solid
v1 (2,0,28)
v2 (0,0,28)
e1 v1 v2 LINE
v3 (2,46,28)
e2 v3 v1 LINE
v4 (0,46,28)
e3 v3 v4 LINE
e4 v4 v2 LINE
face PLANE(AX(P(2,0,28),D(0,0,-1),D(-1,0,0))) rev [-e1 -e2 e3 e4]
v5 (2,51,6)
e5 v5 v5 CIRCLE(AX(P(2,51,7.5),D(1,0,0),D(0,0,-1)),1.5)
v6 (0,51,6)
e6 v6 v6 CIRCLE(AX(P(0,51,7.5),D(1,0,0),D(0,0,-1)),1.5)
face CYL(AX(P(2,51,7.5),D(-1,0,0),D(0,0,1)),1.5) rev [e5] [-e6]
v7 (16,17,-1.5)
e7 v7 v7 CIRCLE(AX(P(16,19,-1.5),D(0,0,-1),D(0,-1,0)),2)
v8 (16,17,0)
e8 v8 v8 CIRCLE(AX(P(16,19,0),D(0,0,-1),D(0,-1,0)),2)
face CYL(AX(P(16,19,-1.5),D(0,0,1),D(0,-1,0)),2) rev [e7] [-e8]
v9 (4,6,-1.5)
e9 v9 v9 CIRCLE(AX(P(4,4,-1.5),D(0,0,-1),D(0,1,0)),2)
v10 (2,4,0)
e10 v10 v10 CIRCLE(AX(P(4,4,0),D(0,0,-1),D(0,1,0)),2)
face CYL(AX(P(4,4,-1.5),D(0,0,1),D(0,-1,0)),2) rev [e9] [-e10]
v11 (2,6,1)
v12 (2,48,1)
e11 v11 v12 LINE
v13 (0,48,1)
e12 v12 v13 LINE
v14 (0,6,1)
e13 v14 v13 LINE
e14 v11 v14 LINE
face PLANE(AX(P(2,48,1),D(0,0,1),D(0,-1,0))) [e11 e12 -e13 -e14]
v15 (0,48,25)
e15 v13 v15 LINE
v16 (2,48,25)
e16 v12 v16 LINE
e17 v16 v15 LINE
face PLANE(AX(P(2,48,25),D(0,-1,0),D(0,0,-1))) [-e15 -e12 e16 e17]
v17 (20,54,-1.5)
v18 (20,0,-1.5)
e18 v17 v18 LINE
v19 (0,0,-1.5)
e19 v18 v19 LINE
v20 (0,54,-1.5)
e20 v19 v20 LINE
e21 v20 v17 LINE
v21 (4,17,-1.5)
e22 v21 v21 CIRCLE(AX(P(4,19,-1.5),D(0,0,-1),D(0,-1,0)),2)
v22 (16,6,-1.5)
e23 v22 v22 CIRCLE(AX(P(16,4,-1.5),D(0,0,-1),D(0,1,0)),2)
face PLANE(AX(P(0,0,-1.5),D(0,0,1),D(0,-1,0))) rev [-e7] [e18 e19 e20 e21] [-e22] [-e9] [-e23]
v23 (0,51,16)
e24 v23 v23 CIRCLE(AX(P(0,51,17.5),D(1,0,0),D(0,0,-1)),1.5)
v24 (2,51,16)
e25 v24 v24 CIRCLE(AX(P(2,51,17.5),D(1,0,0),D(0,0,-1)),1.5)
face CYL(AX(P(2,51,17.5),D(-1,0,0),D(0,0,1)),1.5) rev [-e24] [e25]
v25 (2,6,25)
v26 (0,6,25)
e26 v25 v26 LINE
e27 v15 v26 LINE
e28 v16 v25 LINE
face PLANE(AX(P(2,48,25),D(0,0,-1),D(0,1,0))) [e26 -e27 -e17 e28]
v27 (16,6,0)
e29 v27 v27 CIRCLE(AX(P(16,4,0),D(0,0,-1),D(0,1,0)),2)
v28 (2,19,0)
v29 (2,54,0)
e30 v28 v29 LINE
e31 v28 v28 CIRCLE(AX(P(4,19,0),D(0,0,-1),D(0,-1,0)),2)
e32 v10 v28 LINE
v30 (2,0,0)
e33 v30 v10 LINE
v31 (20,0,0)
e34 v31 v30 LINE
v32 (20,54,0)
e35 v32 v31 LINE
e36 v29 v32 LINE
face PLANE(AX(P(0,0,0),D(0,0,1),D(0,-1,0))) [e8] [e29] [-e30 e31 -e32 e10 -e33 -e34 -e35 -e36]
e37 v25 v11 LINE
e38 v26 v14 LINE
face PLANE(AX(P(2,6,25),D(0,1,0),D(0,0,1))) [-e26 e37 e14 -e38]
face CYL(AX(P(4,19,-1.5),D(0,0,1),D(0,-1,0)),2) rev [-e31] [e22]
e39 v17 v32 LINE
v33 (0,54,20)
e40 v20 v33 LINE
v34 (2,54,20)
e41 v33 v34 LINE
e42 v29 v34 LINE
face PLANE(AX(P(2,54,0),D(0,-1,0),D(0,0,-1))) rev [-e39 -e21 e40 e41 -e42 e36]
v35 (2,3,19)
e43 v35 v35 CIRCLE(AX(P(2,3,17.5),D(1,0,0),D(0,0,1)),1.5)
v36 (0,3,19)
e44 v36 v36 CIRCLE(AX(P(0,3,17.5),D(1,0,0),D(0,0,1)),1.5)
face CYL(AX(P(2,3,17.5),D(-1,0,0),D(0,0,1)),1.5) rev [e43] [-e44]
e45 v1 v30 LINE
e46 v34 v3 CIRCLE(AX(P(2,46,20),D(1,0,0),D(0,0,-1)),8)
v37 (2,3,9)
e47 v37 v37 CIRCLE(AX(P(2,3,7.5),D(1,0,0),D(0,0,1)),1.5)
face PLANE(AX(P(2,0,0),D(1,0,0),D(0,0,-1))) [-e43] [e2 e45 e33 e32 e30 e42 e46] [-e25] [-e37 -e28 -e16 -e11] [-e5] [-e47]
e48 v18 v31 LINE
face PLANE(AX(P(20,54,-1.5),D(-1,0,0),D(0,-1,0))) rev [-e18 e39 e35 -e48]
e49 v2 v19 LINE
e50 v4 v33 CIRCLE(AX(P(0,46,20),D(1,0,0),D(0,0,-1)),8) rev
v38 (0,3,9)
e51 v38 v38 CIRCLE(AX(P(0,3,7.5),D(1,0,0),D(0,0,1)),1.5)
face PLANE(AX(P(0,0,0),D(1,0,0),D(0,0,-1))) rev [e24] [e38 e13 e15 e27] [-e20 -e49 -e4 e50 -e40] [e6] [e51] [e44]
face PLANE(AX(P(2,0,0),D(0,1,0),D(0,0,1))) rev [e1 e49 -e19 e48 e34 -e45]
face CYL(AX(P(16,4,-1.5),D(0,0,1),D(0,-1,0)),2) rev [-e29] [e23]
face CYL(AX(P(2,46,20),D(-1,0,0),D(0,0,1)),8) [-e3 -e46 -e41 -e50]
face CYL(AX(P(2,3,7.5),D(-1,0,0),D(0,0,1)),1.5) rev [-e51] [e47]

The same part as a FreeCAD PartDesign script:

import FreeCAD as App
import Part
import Sketcher
from FreeCAD import Vector


def edges_at(feature, points):
    """Names of the edges that pass closest to the given points."""
    edges = feature.Shape.Edges
    near = lambda p: min(range(len(edges)), key=lambda i: edges[i].distToShape(Part.Vertex(*p))[0])
    return sorted({f"Edge{near(p) + 1}" for p in points})

doc = App.newDocument("Part")
body = doc.addObject("PartDesign::Body", "Body")

sketch1 = body.newObject("Sketcher::SketchObject", "Sketch")
sketch1.AttachmentSupport = (doc.getObject("YZ_Plane"), [""])
sketch1.MapMode = "FlatFace"
sketch1.addGeometry([
    Part.LineSegment(Vector(54, 28, 0), Vector(0, 28, 0)),
    Part.LineSegment(Vector(0, 28, 0), Vector(0, 0, 0)),
    Part.LineSegment(Vector(0, 0, 0), Vector(54, 0, 0)),
    Part.LineSegment(Vector(54, 0, 0), Vector(54, 28, 0)),
    Part.Circle(Vector(3, 17.5, 0), Vector(0, 0, 1), 1.5),
    Part.Circle(Vector(3, 7.5, 0), Vector(0, 0, 1), 1.5),
    Part.Circle(Vector(51, 17.5, 0), Vector(0, 0, 1), 1.5),
    Part.LineSegment(Vector(6, 1, 0), Vector(6, 25, 0)),
    Part.LineSegment(Vector(6, 25, 0), Vector(48, 25, 0)),
    Part.LineSegment(Vector(48, 25, 0), Vector(48, 1, 0)),
    Part.LineSegment(Vector(48, 1, 0), Vector(6, 1, 0)),
    Part.Circle(Vector(51, 7.5, 0), Vector(0, 0, 1), 1.5),
], False)
sketch1.addConstraint([
    Sketcher.Constraint("Coincident", 0, 2, 1, 1),
    Sketcher.Constraint("Coincident", 1, 2, 2, 1),
    Sketcher.Constraint("Coincident", 2, 2, 3, 1),
    Sketcher.Constraint("Coincident", 3, 2, 0, 1),
    Sketcher.Constraint("Coincident", 7, 2, 8, 1),
    Sketcher.Constraint("Coincident", 8, 2, 9, 1),
    Sketcher.Constraint("Coincident", 9, 2, 10, 1),
    Sketcher.Constraint("Coincident", 10, 2, 7, 1),
    Sketcher.Constraint("Horizontal", 0),
    Sketcher.Constraint("Vertical", 1),
    Sketcher.Constraint("Horizontal", 2),
    Sketcher.Constraint("Vertical", 3),
    Sketcher.Constraint("Vertical", 7),
    Sketcher.Constraint("Horizontal", 8),
    Sketcher.Constraint("Vertical", 9),
    Sketcher.Constraint("Horizontal", 10),
    Sketcher.Constraint("Coincident", 1, 2, -1, 1),
    Sketcher.Constraint("Equal", 4, 5),
    Sketcher.Constraint("Equal", 5, 6),
    Sketcher.Constraint("Equal", 6, 11),
    Sketcher.Constraint("Horizontal", 4, 3, 6, 3),
    Sketcher.Constraint("Horizontal", 5, 3, 11, 3),
    Sketcher.Constraint("Vertical", 4, 3, 5, 3),
    Sketcher.Constraint("Vertical", 6, 3, 11, 3),
    Sketcher.Constraint("Diameter", 4, 3.0),
    Sketcher.Constraint("DistanceX", 0, 2, 0, 1, 54.0),
    Sketcher.Constraint("DistanceX", 8, 1, 8, 2, 42.0),
    Sketcher.Constraint("DistanceY", 1, 2, 1, 1, 28.0),
    Sketcher.Constraint("DistanceY", 7, 1, 7, 2, 24.0),
    Sketcher.Constraint("DistanceX", -1, 1, 4, 3, 3.0),
    Sketcher.Constraint("DistanceX", -1, 1, 6, 3, 51.0),
    Sketcher.Constraint("DistanceX", -1, 1, 7, 2, 6.0),
    Sketcher.Constraint("DistanceY", -1, 1, 7, 2, 25.0),
    Sketcher.Constraint("DistanceY", 5, 3, 4, 3, 10.0),
    Sketcher.Constraint("DistanceY", -1, 1, 4, 3, 17.5),
])
pad1 = body.newObject("PartDesign::Pad", "Pad")
pad1.Profile = sketch1
pad1.Length = 2

sketch2 = body.newObject("Sketcher::SketchObject", "Sketch001")
sketch2.AttachmentSupport = (doc.getObject("XY_Plane"), [""])
sketch2.MapMode = "FlatFace"
sketch2.addGeometry([
    Part.LineSegment(Vector(20, 54, 0), Vector(20, 0, 0)),
    Part.LineSegment(Vector(20, 0, 0), Vector(0, 0, 0)),
    Part.LineSegment(Vector(0, 0, 0), Vector(0, 54, 0)),
    Part.LineSegment(Vector(0, 54, 0), Vector(20, 54, 0)),
    Part.Circle(Vector(16, 4, 0), Vector(0, 0, 1), 2),
    Part.Circle(Vector(4, 4, 0), Vector(0, 0, 1), 2),
    Part.Circle(Vector(16, 19, 0), Vector(0, 0, 1), 2),
    Part.Circle(Vector(4, 19, 0), Vector(0, 0, 1), 2),
], False)
sketch2.addConstraint([
    Sketcher.Constraint("Coincident", 0, 2, 1, 1),
    Sketcher.Constraint("Coincident", 1, 2, 2, 1),
    Sketcher.Constraint("Coincident", 2, 2, 3, 1),
    Sketcher.Constraint("Coincident", 3, 2, 0, 1),
    Sketcher.Constraint("Vertical", 0),
    Sketcher.Constraint("Horizontal", 1),
    Sketcher.Constraint("Vertical", 2),
    Sketcher.Constraint("Horizontal", 3),
    Sketcher.Constraint("Coincident", 1, 2, -1, 1),
    Sketcher.Constraint("Equal", 4, 5),
    Sketcher.Constraint("Equal", 5, 6),
    Sketcher.Constraint("Equal", 6, 7),
    Sketcher.Constraint("Horizontal", 4, 3, 5, 3),
    Sketcher.Constraint("Horizontal", 6, 3, 7, 3),
    Sketcher.Constraint("Vertical", 4, 3, 6, 3),
    Sketcher.Constraint("Vertical", 5, 3, 7, 3),
    Sketcher.Constraint("Diameter", 4, 4.0),
    Sketcher.Constraint("DistanceX", 1, 2, 1, 1, 20.0),
    Sketcher.Constraint("DistanceY", 0, 2, 0, 1, 54.0),
    Sketcher.Constraint("DistanceX", -1, 1, 4, 3, 16.0),
    Sketcher.Constraint("DistanceY", -1, 1, 4, 3, 4.0),
    Sketcher.Constraint("DistanceX", -1, 1, 5, 3, 4.0),
    Sketcher.Constraint("DistanceY", -1, 1, 6, 3, 19.0),
])
pad2 = body.newObject("PartDesign::Pad", "Pad001")
pad2.Profile = sketch2
pad2.Length = 1.5
pad2.Reversed = True
doc.recompute()

fillet = body.newObject("PartDesign::Fillet", "Fillet")
fillet.Base = (pad2, edges_at(pad2, [(1, 54, 28)]))
fillet.Radius = 8

doc.recompute()
